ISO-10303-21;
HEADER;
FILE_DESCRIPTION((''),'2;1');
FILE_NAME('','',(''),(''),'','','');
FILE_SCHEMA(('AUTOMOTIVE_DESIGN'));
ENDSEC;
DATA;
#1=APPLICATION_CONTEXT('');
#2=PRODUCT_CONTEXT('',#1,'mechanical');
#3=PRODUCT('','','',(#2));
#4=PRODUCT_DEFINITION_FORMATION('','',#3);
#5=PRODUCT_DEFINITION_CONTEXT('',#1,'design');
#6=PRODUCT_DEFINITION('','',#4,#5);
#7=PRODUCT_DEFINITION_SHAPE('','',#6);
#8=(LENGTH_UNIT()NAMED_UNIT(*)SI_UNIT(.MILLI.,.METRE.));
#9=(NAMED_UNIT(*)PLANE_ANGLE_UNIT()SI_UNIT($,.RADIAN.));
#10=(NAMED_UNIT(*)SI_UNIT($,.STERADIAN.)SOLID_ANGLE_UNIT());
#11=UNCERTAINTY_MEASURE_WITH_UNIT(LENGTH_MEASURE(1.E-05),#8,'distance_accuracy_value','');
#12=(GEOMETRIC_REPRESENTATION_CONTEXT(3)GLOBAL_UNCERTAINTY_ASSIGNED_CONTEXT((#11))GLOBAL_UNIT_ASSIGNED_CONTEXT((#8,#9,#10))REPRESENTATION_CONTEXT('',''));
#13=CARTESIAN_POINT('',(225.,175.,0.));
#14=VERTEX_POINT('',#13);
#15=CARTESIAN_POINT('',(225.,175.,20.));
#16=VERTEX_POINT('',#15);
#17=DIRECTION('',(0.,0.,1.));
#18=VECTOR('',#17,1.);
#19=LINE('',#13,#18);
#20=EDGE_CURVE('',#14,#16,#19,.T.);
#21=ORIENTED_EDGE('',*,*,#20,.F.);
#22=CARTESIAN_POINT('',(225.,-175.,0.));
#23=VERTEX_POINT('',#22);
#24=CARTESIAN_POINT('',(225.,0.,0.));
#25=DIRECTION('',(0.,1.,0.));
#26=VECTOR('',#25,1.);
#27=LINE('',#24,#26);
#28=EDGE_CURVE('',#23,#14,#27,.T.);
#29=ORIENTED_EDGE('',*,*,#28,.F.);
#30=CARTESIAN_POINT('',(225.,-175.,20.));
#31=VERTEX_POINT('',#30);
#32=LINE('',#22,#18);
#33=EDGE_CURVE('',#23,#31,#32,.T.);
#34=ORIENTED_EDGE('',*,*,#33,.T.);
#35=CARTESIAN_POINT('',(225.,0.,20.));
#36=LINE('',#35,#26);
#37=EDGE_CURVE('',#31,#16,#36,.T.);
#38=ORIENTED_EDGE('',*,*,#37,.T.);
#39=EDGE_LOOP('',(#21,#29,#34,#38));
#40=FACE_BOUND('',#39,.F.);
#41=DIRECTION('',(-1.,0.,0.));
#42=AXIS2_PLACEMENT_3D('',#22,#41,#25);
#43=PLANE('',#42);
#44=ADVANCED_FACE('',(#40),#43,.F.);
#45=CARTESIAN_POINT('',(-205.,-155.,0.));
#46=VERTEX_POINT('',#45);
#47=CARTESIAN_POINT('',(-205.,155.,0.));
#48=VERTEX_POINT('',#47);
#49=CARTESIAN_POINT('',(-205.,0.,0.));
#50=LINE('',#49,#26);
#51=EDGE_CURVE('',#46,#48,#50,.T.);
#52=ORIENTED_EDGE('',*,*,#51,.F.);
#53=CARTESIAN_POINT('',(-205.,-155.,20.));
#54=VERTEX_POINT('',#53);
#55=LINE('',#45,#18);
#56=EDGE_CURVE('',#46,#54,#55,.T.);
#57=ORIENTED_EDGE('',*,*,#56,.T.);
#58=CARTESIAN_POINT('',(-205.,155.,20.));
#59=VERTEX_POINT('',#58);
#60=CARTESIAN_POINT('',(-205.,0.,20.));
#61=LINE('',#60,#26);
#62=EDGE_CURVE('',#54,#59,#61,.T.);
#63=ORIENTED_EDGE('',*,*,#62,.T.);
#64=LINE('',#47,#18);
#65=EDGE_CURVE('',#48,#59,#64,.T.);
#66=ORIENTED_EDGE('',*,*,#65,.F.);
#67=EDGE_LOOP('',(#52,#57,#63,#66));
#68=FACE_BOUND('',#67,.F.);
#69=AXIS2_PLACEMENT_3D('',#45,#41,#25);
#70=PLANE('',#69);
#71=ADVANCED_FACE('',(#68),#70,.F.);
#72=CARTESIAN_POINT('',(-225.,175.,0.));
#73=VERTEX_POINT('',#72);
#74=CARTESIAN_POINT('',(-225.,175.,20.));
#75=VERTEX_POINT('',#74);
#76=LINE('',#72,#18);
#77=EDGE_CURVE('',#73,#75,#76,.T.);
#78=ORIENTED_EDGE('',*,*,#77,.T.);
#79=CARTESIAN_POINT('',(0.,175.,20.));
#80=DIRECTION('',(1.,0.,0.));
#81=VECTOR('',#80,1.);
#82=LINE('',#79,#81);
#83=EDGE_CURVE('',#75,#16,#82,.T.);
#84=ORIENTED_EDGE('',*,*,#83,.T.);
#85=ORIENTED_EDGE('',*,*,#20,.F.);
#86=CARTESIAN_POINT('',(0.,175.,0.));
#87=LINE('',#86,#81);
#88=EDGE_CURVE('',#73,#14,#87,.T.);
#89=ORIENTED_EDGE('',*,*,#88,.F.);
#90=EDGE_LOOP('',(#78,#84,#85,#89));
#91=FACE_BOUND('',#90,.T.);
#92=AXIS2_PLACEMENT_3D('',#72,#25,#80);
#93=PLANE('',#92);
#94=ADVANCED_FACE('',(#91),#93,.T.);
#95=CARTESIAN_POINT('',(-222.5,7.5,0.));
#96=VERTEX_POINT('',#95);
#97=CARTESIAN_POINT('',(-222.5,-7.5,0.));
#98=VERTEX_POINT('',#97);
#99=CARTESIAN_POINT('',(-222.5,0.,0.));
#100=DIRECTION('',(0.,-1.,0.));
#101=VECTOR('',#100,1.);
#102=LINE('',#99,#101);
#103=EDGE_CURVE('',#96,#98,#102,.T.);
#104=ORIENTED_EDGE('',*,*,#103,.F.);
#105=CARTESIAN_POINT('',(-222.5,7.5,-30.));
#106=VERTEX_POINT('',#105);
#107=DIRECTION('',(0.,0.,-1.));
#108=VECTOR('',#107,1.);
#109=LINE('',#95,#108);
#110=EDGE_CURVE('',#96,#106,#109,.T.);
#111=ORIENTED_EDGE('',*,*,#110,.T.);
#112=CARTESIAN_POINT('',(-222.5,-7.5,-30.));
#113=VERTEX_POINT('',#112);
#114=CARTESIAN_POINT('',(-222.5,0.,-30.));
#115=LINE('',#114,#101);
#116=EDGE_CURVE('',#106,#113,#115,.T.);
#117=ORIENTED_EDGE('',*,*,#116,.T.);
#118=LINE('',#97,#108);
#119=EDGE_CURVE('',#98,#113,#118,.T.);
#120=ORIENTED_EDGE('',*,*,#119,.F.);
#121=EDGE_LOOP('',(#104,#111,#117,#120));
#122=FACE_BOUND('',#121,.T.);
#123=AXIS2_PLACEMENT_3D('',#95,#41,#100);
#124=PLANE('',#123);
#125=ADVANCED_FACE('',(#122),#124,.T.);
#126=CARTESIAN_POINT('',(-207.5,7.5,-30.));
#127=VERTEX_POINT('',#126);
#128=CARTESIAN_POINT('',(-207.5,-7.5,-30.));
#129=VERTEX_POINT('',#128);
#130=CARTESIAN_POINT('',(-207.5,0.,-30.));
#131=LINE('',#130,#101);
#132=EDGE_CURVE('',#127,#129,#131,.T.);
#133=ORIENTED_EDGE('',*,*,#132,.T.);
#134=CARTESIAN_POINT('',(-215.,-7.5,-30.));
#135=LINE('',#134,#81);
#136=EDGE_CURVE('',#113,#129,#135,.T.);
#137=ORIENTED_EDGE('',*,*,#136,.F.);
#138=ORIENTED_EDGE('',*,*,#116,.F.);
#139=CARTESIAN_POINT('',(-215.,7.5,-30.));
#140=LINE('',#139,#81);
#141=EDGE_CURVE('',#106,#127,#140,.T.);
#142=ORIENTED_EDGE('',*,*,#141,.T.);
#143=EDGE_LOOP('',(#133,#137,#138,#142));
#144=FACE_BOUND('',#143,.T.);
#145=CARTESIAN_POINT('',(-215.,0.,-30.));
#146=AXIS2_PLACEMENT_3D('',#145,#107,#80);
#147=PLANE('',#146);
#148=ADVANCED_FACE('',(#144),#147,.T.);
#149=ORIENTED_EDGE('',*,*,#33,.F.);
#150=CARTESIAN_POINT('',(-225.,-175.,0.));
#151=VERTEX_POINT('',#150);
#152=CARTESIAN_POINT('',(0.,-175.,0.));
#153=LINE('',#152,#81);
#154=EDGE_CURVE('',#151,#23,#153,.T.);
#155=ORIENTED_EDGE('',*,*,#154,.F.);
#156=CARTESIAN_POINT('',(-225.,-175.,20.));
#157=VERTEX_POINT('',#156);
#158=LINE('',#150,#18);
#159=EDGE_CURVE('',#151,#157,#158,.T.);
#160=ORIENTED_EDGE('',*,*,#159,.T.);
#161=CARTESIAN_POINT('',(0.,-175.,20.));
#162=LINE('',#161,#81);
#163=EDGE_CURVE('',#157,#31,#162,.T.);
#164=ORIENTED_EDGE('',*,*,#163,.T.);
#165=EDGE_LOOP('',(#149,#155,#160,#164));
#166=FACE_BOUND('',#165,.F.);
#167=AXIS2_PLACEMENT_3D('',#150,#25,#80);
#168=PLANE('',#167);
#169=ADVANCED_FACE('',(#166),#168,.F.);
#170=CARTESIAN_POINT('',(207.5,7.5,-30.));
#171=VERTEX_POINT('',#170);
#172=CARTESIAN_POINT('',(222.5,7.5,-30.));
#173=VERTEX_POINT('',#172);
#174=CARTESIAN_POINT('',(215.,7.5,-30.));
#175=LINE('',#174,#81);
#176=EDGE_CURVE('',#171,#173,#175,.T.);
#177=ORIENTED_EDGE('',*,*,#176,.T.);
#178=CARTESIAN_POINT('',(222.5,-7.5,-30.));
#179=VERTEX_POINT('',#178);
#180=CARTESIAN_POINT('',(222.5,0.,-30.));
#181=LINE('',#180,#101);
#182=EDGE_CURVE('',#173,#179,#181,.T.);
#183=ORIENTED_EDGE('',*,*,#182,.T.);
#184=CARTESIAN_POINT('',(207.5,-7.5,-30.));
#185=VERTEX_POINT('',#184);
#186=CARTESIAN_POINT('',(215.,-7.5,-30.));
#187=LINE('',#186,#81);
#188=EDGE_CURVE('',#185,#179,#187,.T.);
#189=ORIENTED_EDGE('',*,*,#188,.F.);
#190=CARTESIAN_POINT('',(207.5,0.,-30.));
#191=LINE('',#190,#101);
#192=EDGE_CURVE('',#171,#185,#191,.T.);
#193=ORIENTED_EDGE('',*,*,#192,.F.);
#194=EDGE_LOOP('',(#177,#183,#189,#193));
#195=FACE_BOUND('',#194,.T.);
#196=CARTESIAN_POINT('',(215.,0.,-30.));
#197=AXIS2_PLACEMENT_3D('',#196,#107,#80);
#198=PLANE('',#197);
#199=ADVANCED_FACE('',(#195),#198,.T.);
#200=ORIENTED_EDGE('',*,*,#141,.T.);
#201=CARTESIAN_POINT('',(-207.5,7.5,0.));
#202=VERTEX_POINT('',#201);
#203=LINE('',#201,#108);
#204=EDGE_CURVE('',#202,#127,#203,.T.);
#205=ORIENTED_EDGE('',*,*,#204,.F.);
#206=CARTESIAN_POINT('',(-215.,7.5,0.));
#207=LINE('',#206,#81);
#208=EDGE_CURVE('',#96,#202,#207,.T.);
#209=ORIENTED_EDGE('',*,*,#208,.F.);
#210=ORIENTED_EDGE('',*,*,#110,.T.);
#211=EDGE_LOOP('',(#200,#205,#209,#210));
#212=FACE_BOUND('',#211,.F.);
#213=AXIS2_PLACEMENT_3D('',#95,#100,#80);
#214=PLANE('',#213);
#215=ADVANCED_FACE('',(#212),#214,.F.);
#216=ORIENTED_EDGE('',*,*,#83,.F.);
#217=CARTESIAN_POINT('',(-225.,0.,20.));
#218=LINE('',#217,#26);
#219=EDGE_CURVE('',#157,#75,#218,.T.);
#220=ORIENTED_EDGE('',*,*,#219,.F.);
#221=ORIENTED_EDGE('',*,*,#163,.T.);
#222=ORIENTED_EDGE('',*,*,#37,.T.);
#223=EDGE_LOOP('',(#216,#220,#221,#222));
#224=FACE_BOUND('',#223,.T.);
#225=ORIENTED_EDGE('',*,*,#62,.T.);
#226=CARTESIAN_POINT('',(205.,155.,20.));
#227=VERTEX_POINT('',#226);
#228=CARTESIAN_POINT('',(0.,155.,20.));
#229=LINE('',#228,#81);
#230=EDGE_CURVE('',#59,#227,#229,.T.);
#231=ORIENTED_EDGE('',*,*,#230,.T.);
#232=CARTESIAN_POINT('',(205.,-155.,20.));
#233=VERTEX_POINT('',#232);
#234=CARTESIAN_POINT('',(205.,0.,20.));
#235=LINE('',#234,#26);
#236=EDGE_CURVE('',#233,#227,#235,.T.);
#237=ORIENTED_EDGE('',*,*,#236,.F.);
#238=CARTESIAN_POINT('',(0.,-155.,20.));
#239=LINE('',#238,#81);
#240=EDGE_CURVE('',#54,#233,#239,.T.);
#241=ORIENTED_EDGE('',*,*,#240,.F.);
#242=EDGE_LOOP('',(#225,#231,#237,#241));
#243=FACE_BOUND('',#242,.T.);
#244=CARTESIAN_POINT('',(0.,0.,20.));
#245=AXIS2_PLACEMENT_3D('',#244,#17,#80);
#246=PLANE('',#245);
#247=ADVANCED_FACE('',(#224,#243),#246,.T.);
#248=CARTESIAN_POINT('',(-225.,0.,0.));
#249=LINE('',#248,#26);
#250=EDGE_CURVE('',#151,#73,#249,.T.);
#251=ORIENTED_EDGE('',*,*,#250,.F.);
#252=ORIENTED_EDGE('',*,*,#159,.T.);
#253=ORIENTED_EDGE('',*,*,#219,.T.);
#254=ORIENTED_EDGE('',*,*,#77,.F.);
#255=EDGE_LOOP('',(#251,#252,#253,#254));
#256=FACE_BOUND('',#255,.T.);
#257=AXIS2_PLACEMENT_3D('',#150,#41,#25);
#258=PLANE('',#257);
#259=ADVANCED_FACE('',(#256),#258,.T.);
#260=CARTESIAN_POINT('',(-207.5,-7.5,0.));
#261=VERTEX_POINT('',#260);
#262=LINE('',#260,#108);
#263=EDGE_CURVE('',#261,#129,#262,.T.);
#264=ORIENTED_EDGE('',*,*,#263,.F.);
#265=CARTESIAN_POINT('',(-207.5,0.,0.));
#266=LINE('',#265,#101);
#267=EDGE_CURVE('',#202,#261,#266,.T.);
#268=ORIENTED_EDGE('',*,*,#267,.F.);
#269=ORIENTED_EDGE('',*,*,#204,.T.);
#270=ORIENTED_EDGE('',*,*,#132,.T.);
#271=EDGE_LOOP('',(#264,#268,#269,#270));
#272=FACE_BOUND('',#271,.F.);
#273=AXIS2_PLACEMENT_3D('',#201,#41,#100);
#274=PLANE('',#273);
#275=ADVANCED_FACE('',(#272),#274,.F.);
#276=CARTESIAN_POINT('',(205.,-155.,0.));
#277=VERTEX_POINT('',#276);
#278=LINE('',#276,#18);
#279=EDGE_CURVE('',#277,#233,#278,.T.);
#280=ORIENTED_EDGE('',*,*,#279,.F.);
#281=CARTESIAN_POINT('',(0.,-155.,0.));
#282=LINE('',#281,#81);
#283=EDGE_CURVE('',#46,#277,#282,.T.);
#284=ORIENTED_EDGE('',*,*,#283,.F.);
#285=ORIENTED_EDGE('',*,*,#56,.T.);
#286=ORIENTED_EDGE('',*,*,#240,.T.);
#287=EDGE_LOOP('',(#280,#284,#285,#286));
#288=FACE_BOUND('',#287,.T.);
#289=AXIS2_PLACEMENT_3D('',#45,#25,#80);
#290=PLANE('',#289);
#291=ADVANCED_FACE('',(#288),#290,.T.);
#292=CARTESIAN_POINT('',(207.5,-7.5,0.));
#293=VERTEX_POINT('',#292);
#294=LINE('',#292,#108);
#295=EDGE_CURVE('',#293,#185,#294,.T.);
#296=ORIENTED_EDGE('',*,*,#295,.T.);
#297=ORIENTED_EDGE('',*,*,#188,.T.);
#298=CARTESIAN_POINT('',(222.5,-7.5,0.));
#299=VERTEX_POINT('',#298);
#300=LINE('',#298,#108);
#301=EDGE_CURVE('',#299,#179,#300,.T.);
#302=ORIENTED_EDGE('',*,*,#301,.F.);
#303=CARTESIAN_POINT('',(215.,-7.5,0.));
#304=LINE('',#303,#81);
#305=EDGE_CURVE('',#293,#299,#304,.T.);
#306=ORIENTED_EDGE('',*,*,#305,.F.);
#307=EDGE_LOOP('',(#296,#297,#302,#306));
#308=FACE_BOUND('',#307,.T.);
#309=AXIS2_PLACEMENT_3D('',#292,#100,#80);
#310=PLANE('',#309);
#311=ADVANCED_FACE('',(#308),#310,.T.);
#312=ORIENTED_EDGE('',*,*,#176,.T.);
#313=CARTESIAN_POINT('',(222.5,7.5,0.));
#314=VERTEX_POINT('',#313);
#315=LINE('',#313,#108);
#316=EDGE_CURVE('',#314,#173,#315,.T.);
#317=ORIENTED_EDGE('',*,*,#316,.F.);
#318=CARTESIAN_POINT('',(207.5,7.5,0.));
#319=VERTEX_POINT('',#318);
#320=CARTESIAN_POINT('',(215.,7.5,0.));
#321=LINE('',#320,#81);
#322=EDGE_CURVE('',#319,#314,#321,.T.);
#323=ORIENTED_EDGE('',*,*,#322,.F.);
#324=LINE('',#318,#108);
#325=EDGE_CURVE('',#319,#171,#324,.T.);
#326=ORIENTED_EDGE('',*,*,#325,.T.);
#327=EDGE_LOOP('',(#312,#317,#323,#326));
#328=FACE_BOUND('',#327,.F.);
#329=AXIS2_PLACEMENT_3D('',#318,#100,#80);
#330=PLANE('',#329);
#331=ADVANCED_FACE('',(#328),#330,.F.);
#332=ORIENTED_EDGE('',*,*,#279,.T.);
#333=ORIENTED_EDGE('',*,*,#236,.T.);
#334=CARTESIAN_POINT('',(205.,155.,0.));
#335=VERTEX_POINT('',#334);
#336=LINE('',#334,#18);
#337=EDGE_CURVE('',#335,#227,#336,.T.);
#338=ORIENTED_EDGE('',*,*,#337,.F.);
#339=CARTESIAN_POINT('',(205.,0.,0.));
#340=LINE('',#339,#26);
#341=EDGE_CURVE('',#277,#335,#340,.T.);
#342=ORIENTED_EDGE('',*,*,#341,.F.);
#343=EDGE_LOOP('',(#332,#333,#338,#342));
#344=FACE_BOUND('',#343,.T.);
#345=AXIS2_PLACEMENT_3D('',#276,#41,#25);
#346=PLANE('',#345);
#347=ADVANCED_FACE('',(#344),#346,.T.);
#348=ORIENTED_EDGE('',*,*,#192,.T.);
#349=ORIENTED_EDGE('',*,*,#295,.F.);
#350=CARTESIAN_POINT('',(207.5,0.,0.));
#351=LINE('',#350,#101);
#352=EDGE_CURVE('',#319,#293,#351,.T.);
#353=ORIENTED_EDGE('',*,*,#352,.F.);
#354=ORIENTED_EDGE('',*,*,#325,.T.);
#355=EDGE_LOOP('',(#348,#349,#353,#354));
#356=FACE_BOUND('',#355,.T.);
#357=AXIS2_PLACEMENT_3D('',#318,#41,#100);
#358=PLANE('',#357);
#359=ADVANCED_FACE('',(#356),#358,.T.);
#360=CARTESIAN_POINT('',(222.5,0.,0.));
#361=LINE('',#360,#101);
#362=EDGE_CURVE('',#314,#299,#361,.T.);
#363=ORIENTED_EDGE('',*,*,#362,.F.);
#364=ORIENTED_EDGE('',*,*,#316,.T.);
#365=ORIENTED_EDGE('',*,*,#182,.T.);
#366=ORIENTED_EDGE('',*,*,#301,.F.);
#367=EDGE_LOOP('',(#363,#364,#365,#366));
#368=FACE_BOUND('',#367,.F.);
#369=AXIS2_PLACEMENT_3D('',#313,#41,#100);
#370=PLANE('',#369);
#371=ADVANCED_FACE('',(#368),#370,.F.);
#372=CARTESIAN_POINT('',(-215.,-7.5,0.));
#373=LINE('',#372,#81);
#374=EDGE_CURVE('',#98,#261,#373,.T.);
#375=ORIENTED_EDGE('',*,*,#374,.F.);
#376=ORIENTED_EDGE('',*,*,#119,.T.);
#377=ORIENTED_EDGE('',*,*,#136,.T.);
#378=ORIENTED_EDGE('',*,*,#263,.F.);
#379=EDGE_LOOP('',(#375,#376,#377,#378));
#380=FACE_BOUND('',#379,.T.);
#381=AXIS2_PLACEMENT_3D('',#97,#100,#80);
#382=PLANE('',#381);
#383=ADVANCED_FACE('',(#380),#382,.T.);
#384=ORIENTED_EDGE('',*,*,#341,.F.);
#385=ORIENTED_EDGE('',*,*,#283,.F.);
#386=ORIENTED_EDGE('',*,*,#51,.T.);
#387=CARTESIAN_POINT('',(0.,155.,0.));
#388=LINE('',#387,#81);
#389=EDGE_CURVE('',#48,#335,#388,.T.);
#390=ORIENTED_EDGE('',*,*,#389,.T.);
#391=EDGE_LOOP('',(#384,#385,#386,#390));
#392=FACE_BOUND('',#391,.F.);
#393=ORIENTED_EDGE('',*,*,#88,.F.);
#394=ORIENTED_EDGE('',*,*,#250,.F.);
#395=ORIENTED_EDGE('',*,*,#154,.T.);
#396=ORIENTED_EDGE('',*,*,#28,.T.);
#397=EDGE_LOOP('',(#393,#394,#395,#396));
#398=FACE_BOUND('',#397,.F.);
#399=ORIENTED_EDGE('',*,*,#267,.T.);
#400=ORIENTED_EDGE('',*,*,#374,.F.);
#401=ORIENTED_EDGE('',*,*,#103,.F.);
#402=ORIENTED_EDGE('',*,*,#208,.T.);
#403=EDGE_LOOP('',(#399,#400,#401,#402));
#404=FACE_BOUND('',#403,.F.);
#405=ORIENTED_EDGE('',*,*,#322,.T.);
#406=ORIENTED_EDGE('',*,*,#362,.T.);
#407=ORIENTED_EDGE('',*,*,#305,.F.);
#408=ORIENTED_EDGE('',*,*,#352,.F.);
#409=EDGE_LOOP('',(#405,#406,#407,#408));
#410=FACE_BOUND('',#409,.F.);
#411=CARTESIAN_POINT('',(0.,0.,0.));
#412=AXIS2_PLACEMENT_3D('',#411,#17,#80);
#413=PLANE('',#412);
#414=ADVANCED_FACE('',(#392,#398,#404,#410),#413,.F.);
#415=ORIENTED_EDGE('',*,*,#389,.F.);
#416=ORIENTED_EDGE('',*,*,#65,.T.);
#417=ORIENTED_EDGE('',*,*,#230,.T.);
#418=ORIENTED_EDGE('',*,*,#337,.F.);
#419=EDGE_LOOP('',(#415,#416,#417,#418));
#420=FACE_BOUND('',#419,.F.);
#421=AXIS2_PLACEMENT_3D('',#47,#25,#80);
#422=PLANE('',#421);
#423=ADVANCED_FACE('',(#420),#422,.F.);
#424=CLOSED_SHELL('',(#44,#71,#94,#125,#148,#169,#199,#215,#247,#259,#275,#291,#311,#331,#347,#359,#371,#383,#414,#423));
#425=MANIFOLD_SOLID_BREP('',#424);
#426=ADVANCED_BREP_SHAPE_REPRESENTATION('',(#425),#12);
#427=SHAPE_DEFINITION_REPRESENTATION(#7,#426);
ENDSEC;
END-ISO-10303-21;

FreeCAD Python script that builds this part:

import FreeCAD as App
import Part
import Sketcher
from FreeCAD import Vector


def add_polygon(sketch, points):
    """Adds a closed chain of lines whose ends are joined by coincident constraints."""
    first, n = sketch.GeometryCount, len(points)
    for a, b in zip(points, points[1:] + points[:1]):
        sketch.addGeometry(Part.LineSegment(App.Vector(*a, 0), App.Vector(*b, 0)), False)
    for i in range(n):
        sketch.addConstraint(Sketcher.Constraint("Coincident", first + i, 2, first + (i + 1) % n, 1))

doc = App.newDocument("Part")
params = doc.addObject("Spreadsheet::Sheet", "Params")
for row, (alias, value) in enumerate([
    ("sketch1_width", "450 mm"),
    ("sketch1_width2", "410 mm"),
    ("sketch1_height", "350 mm"),
    ("sketch1_height2", "310 mm"),
    ("pad1_length", "20 mm"),
    ("sketch2_width", "15 mm"),
    ("pad2_length", "30 mm"),
], start=1):
    params.set(f"A{row}", alias)
    params.set(f"B{row}", "=" + value)
    params.setAlias(f"B{row}", alias)

body = doc.addObject("PartDesign::Body", "Body")

sketch1 = body.newObject("Sketcher::SketchObject", "Sketch")
sketch1.AttachmentSupport = (doc.getObject("XY_Plane"), [""])
sketch1.MapMode = "FlatFace"
add_polygon(sketch1, [(-225, 175), (-225, -175), (225, -175), (225, 175)])
add_polygon(sketch1, [(205, -155), (-205, -155), (-205, 155), (205, 155)])
sketch1.addConstraint([
    Sketcher.Constraint("Vertical", 0),
    Sketcher.Constraint("Horizontal", 1),
    Sketcher.Constraint("Vertical", 2),
    Sketcher.Constraint("Horizontal", 3),
    Sketcher.Constraint("Horizontal", 4),
    Sketcher.Constraint("Vertical", 5),
    Sketcher.Constraint("Horizontal", 6),
    Sketcher.Constraint("Vertical", 7),
    Sketcher.Constraint("Symmetric", 0, 2, 2, 2, -1, 1),
    Sketcher.Constraint("Symmetric", 4, 2, 6, 2, -1, 1),
    Sketcher.Constraint("DistanceX", 1, 1, 1, 2, 450.0),
    Sketcher.Constraint("DistanceX", 4, 2, 4, 1, 410.0),
    Sketcher.Constraint("DistanceY", 0, 2, 0, 1, 350.0),
    Sketcher.Constraint("DistanceY", 5, 1, 5, 2, 310.0),
])
sketch1.setExpression("Constraints[18]", "Params.sketch1_width")
sketch1.setExpression("Constraints[19]", "Params.sketch1_width2")
sketch1.setExpression("Constraints[20]", "Params.sketch1_height")
sketch1.setExpression("Constraints[21]", "Params.sketch1_height2")
pad1 = body.newObject("PartDesign::Pad", "Pad")
pad1.Profile = sketch1
pad1.setExpression("Length", "Params.pad1_length")

sketch2 = body.newObject("Sketcher::SketchObject", "Sketch001")
sketch2.AttachmentSupport = (doc.getObject("XY_Plane"), [""])
sketch2.MapMode = "FlatFace"
add_polygon(sketch2, [(-222, -8), (-222, 8), (-208, 8), (-208, -8)])
add_polygon(sketch2, [(208, -8), (208, 8), (222, 8), (222, -8)])
sketch2.addConstraint([
    Sketcher.Constraint("Vertical", 0),
    Sketcher.Constraint("Horizontal", 1),
    Sketcher.Constraint("Vertical", 2),
    Sketcher.Constraint("Horizontal", 3),
    Sketcher.Constraint("Vertical", 4),
    Sketcher.Constraint("Horizontal", 5),
    Sketcher.Constraint("Vertical", 6),
    Sketcher.Constraint("Horizontal", 7),
    Sketcher.Constraint("Symmetric", 2, 2, 4, 2, -1, 1),
    Sketcher.Constraint("Symmetric", 0, 2, 6, 2, -1, 1),
    Sketcher.Constraint("Horizontal", 1, 2, 4, 2),
    Sketcher.Constraint("Equal", 7, 0),
    Sketcher.Constraint("DistanceX", 1, 1, 1, 2, 15.0),
    Sketcher.Constraint("DistanceX", 1, 2, 4, 2, 415.0),
])
sketch2.setExpression("Constraints[20]", "Params.sketch2_width")
pad2 = body.newObject("PartDesign::Pad", "Pad001")
pad2.Profile = sketch2
pad2.setExpression("Length", "Params.pad2_length")
pad2.Reversed = True

doc.recompute()
